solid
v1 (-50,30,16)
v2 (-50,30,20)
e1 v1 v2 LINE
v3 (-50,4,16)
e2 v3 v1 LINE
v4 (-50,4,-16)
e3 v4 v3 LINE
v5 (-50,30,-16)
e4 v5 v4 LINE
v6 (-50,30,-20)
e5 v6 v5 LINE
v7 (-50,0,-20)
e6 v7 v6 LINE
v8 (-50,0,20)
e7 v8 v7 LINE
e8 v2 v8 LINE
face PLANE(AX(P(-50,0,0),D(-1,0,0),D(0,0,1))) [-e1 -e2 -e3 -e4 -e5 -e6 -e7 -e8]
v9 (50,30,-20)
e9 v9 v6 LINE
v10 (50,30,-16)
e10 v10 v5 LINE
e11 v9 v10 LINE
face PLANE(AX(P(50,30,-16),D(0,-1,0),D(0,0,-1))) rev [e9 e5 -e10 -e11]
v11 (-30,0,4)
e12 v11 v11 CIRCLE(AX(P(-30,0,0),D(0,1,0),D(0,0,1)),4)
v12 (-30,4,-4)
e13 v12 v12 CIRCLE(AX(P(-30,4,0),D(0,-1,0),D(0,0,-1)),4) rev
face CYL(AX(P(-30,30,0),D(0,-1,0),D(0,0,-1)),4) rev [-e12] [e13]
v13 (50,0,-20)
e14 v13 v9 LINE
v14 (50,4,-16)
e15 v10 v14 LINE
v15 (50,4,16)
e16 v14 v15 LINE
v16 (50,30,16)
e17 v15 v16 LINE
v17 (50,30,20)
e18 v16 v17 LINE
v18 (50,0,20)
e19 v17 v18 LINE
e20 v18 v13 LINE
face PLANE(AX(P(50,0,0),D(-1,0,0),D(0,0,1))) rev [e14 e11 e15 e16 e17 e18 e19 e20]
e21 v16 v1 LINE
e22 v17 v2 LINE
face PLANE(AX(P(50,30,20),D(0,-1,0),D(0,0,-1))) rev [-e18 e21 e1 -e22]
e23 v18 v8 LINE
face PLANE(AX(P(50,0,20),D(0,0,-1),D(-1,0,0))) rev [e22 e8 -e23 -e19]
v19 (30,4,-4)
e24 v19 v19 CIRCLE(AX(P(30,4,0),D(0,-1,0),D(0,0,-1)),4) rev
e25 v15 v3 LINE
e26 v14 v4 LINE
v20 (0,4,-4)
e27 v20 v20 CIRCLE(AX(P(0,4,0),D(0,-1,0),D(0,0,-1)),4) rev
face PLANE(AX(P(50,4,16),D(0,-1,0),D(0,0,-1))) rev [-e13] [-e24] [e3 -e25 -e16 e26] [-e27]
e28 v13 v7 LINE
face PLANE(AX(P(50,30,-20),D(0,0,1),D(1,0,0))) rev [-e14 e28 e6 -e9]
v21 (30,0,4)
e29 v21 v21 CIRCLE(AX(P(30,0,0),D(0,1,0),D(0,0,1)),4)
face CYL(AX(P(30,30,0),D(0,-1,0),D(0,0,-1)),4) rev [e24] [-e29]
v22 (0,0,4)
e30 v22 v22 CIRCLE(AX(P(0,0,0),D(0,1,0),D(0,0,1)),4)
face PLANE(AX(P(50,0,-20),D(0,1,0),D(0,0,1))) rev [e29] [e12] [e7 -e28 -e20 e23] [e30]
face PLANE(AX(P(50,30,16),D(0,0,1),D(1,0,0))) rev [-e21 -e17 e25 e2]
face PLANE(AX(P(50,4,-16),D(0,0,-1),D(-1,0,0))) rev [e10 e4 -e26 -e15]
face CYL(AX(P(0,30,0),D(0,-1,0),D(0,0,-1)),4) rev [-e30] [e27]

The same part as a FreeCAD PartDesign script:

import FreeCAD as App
import Part
import Sketcher
from FreeCAD import Vector


def add_polygon(sketch, points):
    """Adds a closed chain of lines whose ends are joined by coincident constraints."""
    first, n = sketch.GeometryCount, len(points)
    for a, b in zip(points, points[1:] + points[:1]):
        sketch.addGeometry(Part.LineSegment(App.Vector(*a, 0), App.Vector(*b, 0)), False)
    for i in range(n):
        sketch.addConstraint(Sketcher.Constraint("Coincident", first + i, 2, first + (i + 1) % n, 1))

doc = App.newDocument("Part")
body = doc.addObject("PartDesign::Body", "Body")

# Sketch on YZ plane
sketch1 = body.newObject("Sketcher::SketchObject", "Sketch")
sketch1.AttachmentSupport = (doc.getObject("YZ_Plane"), [""])
sketch1.MapMode = "FlatFace"
sketch1.AttachmentOffset = App.Placement(Vector(0, 0, -50), App.Rotation())
add_polygon(sketch1, [(0, 20), (0, -20), (30, -20), (30, -16), (4, -16), (4, 16), (30, 16), (30, 20)])  # lines 0-7
sketch1.addConstraint(Sketcher.Constraint("Vertical", 0))
sketch1.addConstraint(Sketcher.Constraint("Horizontal", 1))
sketch1.addConstraint(Sketcher.Constraint("Vertical", 2))
sketch1.addConstraint(Sketcher.Constraint("Horizontal", 3))
sketch1.addConstraint(Sketcher.Constraint("Vertical", 4))
sketch1.addConstraint(Sketcher.Constraint("Horizontal", 5))
sketch1.addConstraint(Sketcher.Constraint("Vertical", 6))
sketch1.addConstraint(Sketcher.Constraint("Horizontal", 7))
sketch1.addConstraint(Sketcher.Constraint("Symmetric", 0, 2, 7, 2, -1, 1))
sketch1.addConstraint(Sketcher.Constraint("Symmetric", 2, 2, 5, 2, -1))
sketch1.addConstraint(Sketcher.Constraint("DistanceX", 1, 1, 1, 2, 30.0))
sketch1.addConstraint(Sketcher.Constraint("DistanceX", 3, 2, 3, 1, 26.0))
sketch1.addConstraint(Sketcher.Constraint("DistanceY", 0, 2, 0, 1, 40.0))
sketch1.addConstraint(Sketcher.Constraint("DistanceY", 2, 1, 2, 2, 4.0))
pad1 = body.newObject("PartDesign::Pad", "Pad")
pad1.Profile = sketch1
pad1.Length = 100

# Sketch on XZ plane
sketch2 = body.newObject("Sketcher::SketchObject", "Sketch001")
sketch2.AttachmentSupport = (doc.getObject("XZ_Plane"), [""])
sketch2.MapMode = "FlatFace"
sketch2.addGeometry(Part.Circle(Vector(-30, 0, 0), Vector(0, 0, 1), 4), False)
sketch2.addGeometry(Part.Circle(Vector(0, 0, 0), Vector(0, 0, 1), 4), False)
sketch2.addGeometry(Part.Circle(Vector(30, 0, 0), Vector(0, 0, 1), 4), False)
sketch2.addConstraint(Sketcher.Constraint("Coincident", 1, 3, -1, 1))
sketch2.addConstraint(Sketcher.Constraint("Equal", 0, 1))
sketch2.addConstraint(Sketcher.Constraint("Equal", 1, 2))
sketch2.addConstraint(Sketcher.Constraint("Symmetric", 0, 3, 2, 3, -1, 1))
sketch2.addConstraint(Sketcher.Constraint("PointOnObject", 0, 3, -1))
sketch2.addConstraint(Sketcher.Constraint("Diameter", 0, 8.0))
sketch2.addConstraint(Sketcher.Constraint("DistanceX", 0, 3, -1, 1, 30.0))
pocket1 = body.newObject("PartDesign::Pocket", "Pocket")
pocket1.Profile = sketch2
pocket1.Type = "ThroughAll"

doc.recompute()
